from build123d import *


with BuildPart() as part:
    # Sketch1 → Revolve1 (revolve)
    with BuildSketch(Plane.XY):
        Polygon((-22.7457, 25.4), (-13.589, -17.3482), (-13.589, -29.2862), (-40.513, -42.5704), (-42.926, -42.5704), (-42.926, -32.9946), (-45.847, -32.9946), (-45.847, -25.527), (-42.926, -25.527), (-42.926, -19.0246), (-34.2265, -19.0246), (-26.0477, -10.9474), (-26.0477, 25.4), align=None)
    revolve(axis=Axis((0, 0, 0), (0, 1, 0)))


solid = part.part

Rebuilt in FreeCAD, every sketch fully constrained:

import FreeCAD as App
import Part
import Sketcher

V = App.Vector
Q = App.Units.Quantity

doc = App.newDocument("Part")
body = doc.addObject("PartDesign::Body", "Body")

# Sketch on XY plane
sketch1 = body.newObject("Sketcher::SketchObject", "Sketch")
sketch1.AttachmentSupport = (doc.getObject("XY_Plane"), [""])
sketch1.MapMode = "FlatFace"
sketch1.addGeometry([
    Part.LineSegment(V(-13.6, -17.3, 0), V(-22.7, 25.4, 0)),  # 0
    Part.LineSegment(V(-22.7, 25.4, 0), V(-26, 25.4, 0)),  # 1
    Part.LineSegment(V(-26, 25.4, 0), V(-26, -10.9, 0)),  # 2
    Part.LineSegment(V(-26, -10.9, 0), V(-34.2, -19, 0)),  # 3
    Part.LineSegment(V(-34.2, -19, 0), V(-42.9, -19, 0)),  # 4
    Part.LineSegment(V(-42.9, -19, 0), V(-42.9, -25.5, 0)),  # 5
    Part.LineSegment(V(-42.9, -25.5, 0), V(-45.8, -25.5, 0)),  # 6
    Part.LineSegment(V(-45.8, -25.5, 0), V(-45.8, -33, 0)),  # 7
    Part.LineSegment(V(-45.8, -33, 0), V(-42.9, -33, 0)),  # 8
    Part.LineSegment(V(-42.9, -33, 0), V(-42.9, -42.6, 0)),  # 9
    Part.LineSegment(V(-42.9, -42.6, 0), V(-40.5, -42.6, 0)),  # 10
    Part.LineSegment(V(-40.5, -42.6, 0), V(-13.6, -29.3, 0)),  # 11
    Part.LineSegment(V(-13.6, -29.3, 0), V(-13.6, -17.3, 0)),  # 12
], False)
sketch1.addConstraint([
    Sketcher.Constraint("Coincident", 0, 2, 1, 1),
    Sketcher.Constraint("Coincident", 1, 2, 2, 1),
    Sketcher.Constraint("Coincident", 2, 2, 3, 1),
    Sketcher.Constraint("Coincident", 3, 2, 4, 1),
    Sketcher.Constraint("Coincident", 4, 2, 5, 1),
    Sketcher.Constraint("Coincident", 5, 2, 6, 1),
    Sketcher.Constraint("Coincident", 6, 2, 7, 1),
    Sketcher.Constraint("Coincident", 7, 2, 8, 1),
    Sketcher.Constraint("Coincident", 8, 2, 9, 1),
    Sketcher.Constraint("Coincident", 9, 2, 10, 1),
    Sketcher.Constraint("Coincident", 10, 2, 11, 1),
    Sketcher.Constraint("Coincident", 11, 2, 12, 1),
    Sketcher.Constraint("Coincident", 12, 2, 0, 1),
    Sketcher.Constraint("Horizontal", 1),
    Sketcher.Constraint("Vertical", 2),
    Sketcher.Constraint("Horizontal", 4),
    Sketcher.Constraint("Vertical", 5),
    Sketcher.Constraint("Horizontal", 6),
    Sketcher.Constraint("Vertical", 7),
    Sketcher.Constraint("Horizontal", 8),
    Sketcher.Constraint("Vertical", 9),
    Sketcher.Constraint("Horizontal", 10),
    Sketcher.Constraint("Vertical", 12),
    Sketcher.Constraint("Vertical", 5, 2, 8, 2),
    Sketcher.Constraint("DistanceY", -1, 1, 0, 2, Q("1 in")),
    Sketcher.Constraint("DistanceX", 1, 2, 1, 1, Q("0.13 in")),
    Sketcher.Constraint("DistanceY", 12, 1, 12, 2, Q("0.47 in")),
    Sketcher.Constraint("DistanceX", 6, 2, 6, 1, Q("0.115 in")),
    Sketcher.Constraint("DistanceX", 10, 1, 10, 2, Q("0.095 in")),
    Sketcher.Constraint("DistanceY", 2, 2, 2, 1, Q("1.431 in")),
    Sketcher.Constraint("DistanceY", 5, 2, 5, 1, Q("0.256 in")),
    Sketcher.Constraint("DistanceY", 7, 2, 7, 1, Q("0.294 in")),
    Sketcher.Constraint("DistanceY", 9, 2, 9, 1, Q("0.377 in")),
    Sketcher.Constraint("DistanceX", 4, 2, -1, 1, Q("1.69 in")),
    Sketcher.Constraint("DistanceX", 10, 2, 11, 2, Q("1.06 in")),
    Sketcher.Constraint("DistanceX", 4, 2, 4, 1, Q("0.3425 in")),
    Sketcher.Constraint("DistanceY", 3, 2, -1, 1, Q("0.749 in")),
    Sketcher.Constraint("DistanceY", 11, 2, -1, 1, Q("1.153 in")),
    Sketcher.Constraint("DistanceX", 3, 2, 2, 2, Q("0.322 in")),
])
revolution = body.newObject("PartDesign::Revolution", "Revolution")
revolution.Profile = sketch1
revolution.ReferenceAxis = (sketch1, ["V_Axis"])
revolution.Angle = 360

doc.recompute()
